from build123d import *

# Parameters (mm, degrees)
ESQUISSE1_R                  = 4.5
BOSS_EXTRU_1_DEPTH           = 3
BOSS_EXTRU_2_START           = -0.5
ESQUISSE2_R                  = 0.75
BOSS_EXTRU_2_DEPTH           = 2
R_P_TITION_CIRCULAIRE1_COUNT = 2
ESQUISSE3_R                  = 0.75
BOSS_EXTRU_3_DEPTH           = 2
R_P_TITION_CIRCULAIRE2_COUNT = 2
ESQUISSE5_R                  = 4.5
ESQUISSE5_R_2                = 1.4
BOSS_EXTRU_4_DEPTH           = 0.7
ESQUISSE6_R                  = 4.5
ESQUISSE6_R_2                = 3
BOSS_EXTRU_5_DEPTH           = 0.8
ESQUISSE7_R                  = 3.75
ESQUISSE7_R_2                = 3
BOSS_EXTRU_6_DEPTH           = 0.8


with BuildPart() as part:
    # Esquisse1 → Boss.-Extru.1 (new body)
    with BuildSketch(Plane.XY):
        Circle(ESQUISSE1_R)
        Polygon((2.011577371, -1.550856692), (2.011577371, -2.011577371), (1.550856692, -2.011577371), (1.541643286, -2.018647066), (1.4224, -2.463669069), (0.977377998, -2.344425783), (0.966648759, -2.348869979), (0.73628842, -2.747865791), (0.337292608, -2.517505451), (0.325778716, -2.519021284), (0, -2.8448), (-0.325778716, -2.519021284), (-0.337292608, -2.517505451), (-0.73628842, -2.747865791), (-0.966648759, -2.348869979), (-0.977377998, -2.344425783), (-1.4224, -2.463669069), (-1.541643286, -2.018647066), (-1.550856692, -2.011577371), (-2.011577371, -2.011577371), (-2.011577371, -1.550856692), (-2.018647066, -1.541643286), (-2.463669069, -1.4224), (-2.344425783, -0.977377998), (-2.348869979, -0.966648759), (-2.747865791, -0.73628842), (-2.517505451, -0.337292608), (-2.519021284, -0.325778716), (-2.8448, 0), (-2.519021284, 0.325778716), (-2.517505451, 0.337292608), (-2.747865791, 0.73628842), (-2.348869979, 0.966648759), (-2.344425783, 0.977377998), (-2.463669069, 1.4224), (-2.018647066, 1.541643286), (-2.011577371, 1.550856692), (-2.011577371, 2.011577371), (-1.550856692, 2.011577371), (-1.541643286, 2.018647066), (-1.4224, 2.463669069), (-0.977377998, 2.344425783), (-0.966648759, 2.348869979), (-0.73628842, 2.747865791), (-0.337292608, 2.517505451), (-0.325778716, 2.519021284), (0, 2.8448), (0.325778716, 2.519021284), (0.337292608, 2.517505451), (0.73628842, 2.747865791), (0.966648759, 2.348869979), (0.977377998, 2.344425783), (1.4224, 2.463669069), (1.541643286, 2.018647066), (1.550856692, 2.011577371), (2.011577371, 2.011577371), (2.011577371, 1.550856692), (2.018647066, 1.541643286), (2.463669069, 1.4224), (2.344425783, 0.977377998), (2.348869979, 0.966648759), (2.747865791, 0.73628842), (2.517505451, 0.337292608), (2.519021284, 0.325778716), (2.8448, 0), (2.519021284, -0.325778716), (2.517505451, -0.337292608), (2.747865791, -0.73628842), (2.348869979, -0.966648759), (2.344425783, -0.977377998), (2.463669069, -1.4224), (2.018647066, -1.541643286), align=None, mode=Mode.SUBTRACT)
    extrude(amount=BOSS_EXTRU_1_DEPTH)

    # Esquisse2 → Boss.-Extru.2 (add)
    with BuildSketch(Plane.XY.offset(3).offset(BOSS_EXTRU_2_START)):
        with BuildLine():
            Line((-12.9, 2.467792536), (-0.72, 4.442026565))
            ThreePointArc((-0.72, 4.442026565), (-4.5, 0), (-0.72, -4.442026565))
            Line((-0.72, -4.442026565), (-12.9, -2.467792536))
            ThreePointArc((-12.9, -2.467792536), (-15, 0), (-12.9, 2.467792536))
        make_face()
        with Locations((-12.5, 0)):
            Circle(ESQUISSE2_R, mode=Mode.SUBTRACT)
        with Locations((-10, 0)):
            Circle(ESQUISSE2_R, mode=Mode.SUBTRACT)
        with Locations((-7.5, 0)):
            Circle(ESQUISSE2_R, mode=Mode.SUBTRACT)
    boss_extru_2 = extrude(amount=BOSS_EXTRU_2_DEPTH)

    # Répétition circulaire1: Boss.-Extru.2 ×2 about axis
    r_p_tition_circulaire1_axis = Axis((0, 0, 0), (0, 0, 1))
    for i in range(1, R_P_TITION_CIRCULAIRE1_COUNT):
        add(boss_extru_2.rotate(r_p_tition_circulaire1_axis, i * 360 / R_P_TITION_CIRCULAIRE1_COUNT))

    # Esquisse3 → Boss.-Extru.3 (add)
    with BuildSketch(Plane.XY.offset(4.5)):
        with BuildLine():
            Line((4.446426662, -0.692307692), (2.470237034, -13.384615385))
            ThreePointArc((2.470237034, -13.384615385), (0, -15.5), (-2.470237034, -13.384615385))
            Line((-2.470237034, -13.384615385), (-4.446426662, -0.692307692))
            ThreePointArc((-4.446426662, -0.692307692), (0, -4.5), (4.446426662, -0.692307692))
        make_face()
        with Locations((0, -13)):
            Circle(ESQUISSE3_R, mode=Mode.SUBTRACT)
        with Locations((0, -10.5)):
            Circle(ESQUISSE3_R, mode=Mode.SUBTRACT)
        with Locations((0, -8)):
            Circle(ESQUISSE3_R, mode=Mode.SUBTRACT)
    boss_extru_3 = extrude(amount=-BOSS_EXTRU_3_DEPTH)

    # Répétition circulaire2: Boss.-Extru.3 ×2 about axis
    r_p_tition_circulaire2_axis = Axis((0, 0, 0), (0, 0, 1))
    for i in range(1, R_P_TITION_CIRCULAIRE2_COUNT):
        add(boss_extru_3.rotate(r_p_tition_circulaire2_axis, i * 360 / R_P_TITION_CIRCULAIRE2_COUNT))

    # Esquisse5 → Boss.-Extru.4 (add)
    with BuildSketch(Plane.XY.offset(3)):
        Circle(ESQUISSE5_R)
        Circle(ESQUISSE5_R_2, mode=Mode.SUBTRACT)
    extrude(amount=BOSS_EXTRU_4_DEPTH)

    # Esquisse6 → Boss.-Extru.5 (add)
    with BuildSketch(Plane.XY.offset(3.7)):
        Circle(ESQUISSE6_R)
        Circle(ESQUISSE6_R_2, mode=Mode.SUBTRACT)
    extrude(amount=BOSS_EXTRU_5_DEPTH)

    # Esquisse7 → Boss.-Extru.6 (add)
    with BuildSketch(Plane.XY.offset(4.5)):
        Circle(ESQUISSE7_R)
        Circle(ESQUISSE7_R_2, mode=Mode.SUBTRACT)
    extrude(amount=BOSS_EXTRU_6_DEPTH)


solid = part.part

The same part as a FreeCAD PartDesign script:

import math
import FreeCAD as App
import Part
import Sketcher
from FreeCAD import Vector
Q = App.Units.Quantity


def add_polygon(sketch, points):
    """Adds a closed chain of lines whose ends are joined by coincident constraints."""
    first, n = sketch.GeometryCount, len(points)
    for a, b in zip(points, points[1:] + points[:1]):
        sketch.addGeometry(Part.LineSegment(App.Vector(*a, 0), App.Vector(*b, 0)), False)
    for i in range(n):
        sketch.addConstraint(Sketcher.Constraint("Coincident", first + i, 2, first + (i + 1) % n, 1))

doc = App.newDocument("Part")
body = doc.addObject("PartDesign::Body", "Body")

sketch1 = doc.addObject("Sketcher::SketchObject", "Sketch")
body.addObject(sketch1)
sketch1.AttachmentSupport = (doc.XY_Plane, [""])
sketch1.MapMode = "FlatFace"
sketch1.addGeometry(Part.Circle(Vector(0, 0, 0), Vector(0, 0, 1), 4.5), False)
add_polygon(sketch1, [(2.019, -1.542), (2.012, -1.551), (2.012, -2.012), (1.551, -2.012), (1.542, -2.019), (1.422, -2.464), (0.977, -2.344), (0.967, -2.349), (0.736, -2.748), (0.337, -2.518), (0.326, -2.519), (0, -2.845), (-0.326, -2.519), (-0.337, -2.518), (-0.736, -2.748), (-0.967, -2.349), (-0.977, -2.344), (-1.422, -2.464), (-1.542, -2.019), (-1.551, -2.012), (-2.012, -2.012), (-2.012, -1.551), (-2.019, -1.542), (-2.464, -1.422), (-2.344, -0.977), (-2.349, -0.967), (-2.748, -0.736), (-2.518, -0.337), (-2.519, -0.326), (-2.845, 0), (-2.519, 0.326), (-2.518, 0.337), (-2.748, 0.736), (-2.349, 0.967), (-2.344, 0.977), (-2.464, 1.422), (-2.019, 1.542), (-2.012, 1.551), (-2.012, 2.012), (-1.551, 2.012), (-1.542, 2.019), (-1.422, 2.464), (-0.977, 2.344), (-0.967, 2.349), (-0.736, 2.748), (-0.337, 2.518), (-0.326, 2.519), (0, 2.845), (0.326, 2.519), (0.337, 2.518), (0.736, 2.748), (0.967, 2.349), (0.977, 2.344), (1.422, 2.464), (1.542, 2.019), (1.551, 2.012), (2.012, 2.012), (2.012, 1.551), (2.019, 1.542), (2.464, 1.422), (2.344, 0.977), (2.349, 0.967), (2.748, 0.736), (2.518, 0.337), (2.519, 0.326), (2.845, 0), (2.519, -0.326), (2.518, -0.337), (2.748, -0.736), (2.349, -0.967), (2.344, -0.977), (2.464, -1.422)])
sketch1.addConstraint(Sketcher.Constraint("Vertical", 2))
sketch1.addConstraint(Sketcher.Constraint("Horizontal", 3))
sketch1.addConstraint(Sketcher.Constraint("Horizontal", 20))
sketch1.addConstraint(Sketcher.Constraint("Vertical", 21))
sketch1.addConstraint(Sketcher.Constraint("Vertical", 38))
sketch1.addConstraint(Sketcher.Constraint("Horizontal", 39))
sketch1.addConstraint(Sketcher.Constraint("Horizontal", 56))
sketch1.addConstraint(Sketcher.Constraint("Vertical", 57))
sketch1.addConstraint(Sketcher.Constraint("Coincident", 0, 3, -1, 1))
sketch1.addConstraint(Sketcher.Constraint("Symmetric", 1, 2, 37, 2, -1, 1))
sketch1.addConstraint(Sketcher.Constraint("Symmetric", 3, 2, 39, 2, -1, 1))
sketch1.addConstraint(Sketcher.Constraint("Symmetric", 4, 2, 40, 2, -1, 1))
sketch1.addConstraint(Sketcher.Constraint("Symmetric", 5, 2, 41, 2, -1, 1))
sketch1.addConstraint(Sketcher.Constraint("Symmetric", 6, 2, 42, 2, -1, 1))
sketch1.addConstraint(Sketcher.Constraint("Symmetric", 7, 2, 43, 2, -1, 1))
sketch1.addConstraint(Sketcher.Constraint("Symmetric", 8, 2, 44, 2, -1, 1))
sketch1.addConstraint(Sketcher.Constraint("Symmetric", 9, 2, 45, 2, -1, 1))
sketch1.addConstraint(Sketcher.Constraint("Symmetric", 10, 2, 46, 2, -1, 1))
sketch1.addConstraint(Sketcher.Constraint("Symmetric", 11, 2, 47, 2, -1, 1))
sketch1.addConstraint(Sketcher.Constraint("Symmetric", 12, 2, 48, 2, -1, 1))
sketch1.addConstraint(Sketcher.Constraint("Symmetric", 13, 2, 49, 2, -1, 1))
sketch1.addConstraint(Sketcher.Constraint("Symmetric", 14, 2, 50, 2, -1, 1))
sketch1.addConstraint(Sketcher.Constraint("Symmetric", 15, 2, 51, 2, -1, 1))
sketch1.addConstraint(Sketcher.Constraint("Symmetric", 16, 2, 52, 2, -1, 1))
sketch1.addConstraint(Sketcher.Constraint("Symmetric", 17, 2, 53, 2, -1, 1))
sketch1.addConstraint(Sketcher.Constraint("Symmetric", 18, 2, 54, 2, -1, 1))
sketch1.addConstraint(Sketcher.Constraint("Symmetric", 19, 2, 55, 2, -1, 1))
sketch1.addConstraint(Sketcher.Constraint("Symmetric", 21, 2, 57, 2, -1, 1))
sketch1.addConstraint(Sketcher.Constraint("Symmetric", 22, 2, 58, 2, -1, 1))
sketch1.addConstraint(Sketcher.Constraint("Symmetric", 23, 2, 59, 2, -1, 1))
sketch1.addConstraint(Sketcher.Constraint("Symmetric", 24, 2, 60, 2, -1, 1))
sketch1.addConstraint(Sketcher.Constraint("Symmetric", 25, 2, 61, 2, -1, 1))
sketch1.addConstraint(Sketcher.Constraint("Symmetric", 26, 2, 62, 2, -1, 1))
sketch1.addConstraint(Sketcher.Constraint("Symmetric", 27, 2, 63, 2, -1, 1))
sketch1.addConstraint(Sketcher.Constraint("Symmetric", 28, 2, 64, 2, -1, 1))
sketch1.addConstraint(Sketcher.Constraint("Symmetric", 29, 2, 65, 2, -1, 1))
sketch1.addConstraint(Sketcher.Constraint("Symmetric", 30, 2, 66, 2, -1, 1))
sketch1.addConstraint(Sketcher.Constraint("Symmetric", 31, 2, 67, 2, -1, 1))
sketch1.addConstraint(Sketcher.Constraint("Symmetric", 32, 2, 68, 2, -1, 1))
sketch1.addConstraint(Sketcher.Constraint("Symmetric", 33, 2, 69, 2, -1, 1))
sketch1.addConstraint(Sketcher.Constraint("Symmetric", 34, 2, 70, 2, -1, 1))
sketch1.addConstraint(Sketcher.Constraint("Symmetric", 35, 2, 71, 2, -1, 1))
sketch1.addConstraint(Sketcher.Constraint("Symmetric", 36, 2, 72, 2, -1, 1))
sketch1.addConstraint(Sketcher.Constraint("Symmetric", 10, 2, 12, 2, -2))
sketch1.addConstraint(Sketcher.Constraint("Symmetric", 9, 2, 13, 2, -2))
sketch1.addConstraint(Sketcher.Constraint("Symmetric", 8, 2, 14, 2, -2))
sketch1.addConstraint(Sketcher.Constraint("Symmetric", 7, 2, 15, 2, -2))
sketch1.addConstraint(Sketcher.Constraint("Symmetric", 6, 2, 16, 2, -2))
sketch1.addConstraint(Sketcher.Constraint("Symmetric", 5, 2, 17, 2, -2))
sketch1.addConstraint(Sketcher.Constraint("Symmetric", 4, 2, 18, 2, -2))
sketch1.addConstraint(Sketcher.Constraint("Symmetric", 3, 2, 19, 2, -2))
sketch1.addConstraint(Sketcher.Constraint("Symmetric", 1, 2, 21, 2, -2))
sketch1.addConstraint(Sketcher.Constraint("Symmetric", 36, 2, 58, 2, -2))
sketch1.addConstraint(Sketcher.Constraint("Symmetric", 35, 2, 59, 2, -2))
sketch1.addConstraint(Sketcher.Constraint("Symmetric", 34, 2, 60, 2, -2))
sketch1.addConstraint(Sketcher.Constraint("Symmetric", 33, 2, 61, 2, -2))
sketch1.addConstraint(Sketcher.Constraint("Symmetric", 32, 2, 62, 2, -2))
sketch1.addConstraint(Sketcher.Constraint("Symmetric", 31, 2, 63, 2, -2))
sketch1.addConstraint(Sketcher.Constraint("Symmetric", 30, 2, 64, 2, -2))
sketch1.addConstraint(Sketcher.Constraint("PointOnObject", 11, 2, -2))
sketch1.addConstraint(Sketcher.Constraint("PointOnObject", 29, 2, -1))
sketch1.addConstraint(Sketcher.Constraint("Perpendicular", 5, 6))
sketch1.addConstraint(Sketcher.Constraint("Perpendicular", 8, 9))
sketch1.addConstraint(Sketcher.Constraint("Perpendicular", 11, 12))
sketch1.addConstraint(Sketcher.Constraint("Perpendicular", 1, 19))
sketch1.addConstraint(Sketcher.Constraint("Parallel", 6, 23))
sketch1.addConstraint(Sketcher.Constraint("Perpendicular", 23, 24))
sketch1.addConstraint(Sketcher.Constraint("Perpendicular", 7, 25))
sketch1.addConstraint(Sketcher.Constraint("Parallel", 9, 26))
sketch1.addConstraint(Sketcher.Constraint("Perpendicular", 26, 27))
sketch1.addConstraint(Sketcher.Constraint("Perpendicular", 10, 28))
sketch1.addConstraint(Sketcher.Constraint("Parallel", 12, 29))
sketch1.addConstraint(Sketcher.Constraint("Equal", 56, 2))
sketch1.addConstraint(Sketcher.Constraint("Equal", 1, 4))
sketch1.addConstraint(Sketcher.Constraint("Equal", 5, 6))
sketch1.addConstraint(Sketcher.Constraint("Equal", 4, 7))
sketch1.addConstraint(Sketcher.Constraint("Equal", 6, 8))
sketch1.addConstraint(Sketcher.Constraint("Equal", 8, 9))
sketch1.addConstraint(Sketcher.Constraint("Equal", 7, 10))
sketch1.addConstraint(Sketcher.Constraint("Equal", 9, 11))
sketch1.addConstraint(Sketcher.Constraint("Equal", 18, 23))
sketch1.addConstraint(Sketcher.Constraint("Equal", 23, 24))
sketch1.addConstraint(Sketcher.Constraint("Equal", 22, 25))
sketch1.addConstraint(Sketcher.Constraint("Equal", 24, 26))
sketch1.addConstraint(Sketcher.Constraint("Equal", 26, 27))
sketch1.addConstraint(Sketcher.Constraint("Equal", 25, 28))
sketch1.addConstraint(Sketcher.Constraint("Equal", 27, 29))
sketch1.addConstraint(Sketcher.Constraint("Diameter", 0, 9.0))
sketch1.addConstraint(Sketcher.Constraint("Angle", 5, Q("-105 deg")))
sketch1.addConstraint(Sketcher.Constraint("Angle", 8, Q("-120 deg")))
sketch1.addConstraint(Sketcher.Constraint("Angle", 1, Q("-127.5 deg")))
sketch1.addConstraint(Sketcher.Constraint("Angle", 7, Q("-157.500001 deg")))
sketch1.addConstraint(Sketcher.Constraint("Angle", 10, Q("-172.499998 deg")))
sketch1.addConstraint(Sketcher.Constraint("DistanceX", 3, 2, 3, 1, 0.460721))
sketch1.addConstraint(Sketcher.Constraint("DistanceX", -1, 1, 5, 2, 1.4224))
sketch1.addConstraint(Sketcher.Constraint("DistanceY", 11, 2, -1, 1, 2.8448))
pad1 = doc.addObject("PartDesign::Pad", "Pad")
body.addObject(pad1)
pad1.Profile = sketch1
pad1.Length = 3

sketch2 = doc.addObject("Sketcher::SketchObject", "Sketch001")
body.addObject(sketch2)
sketch2.AttachmentSupport = (doc.XY_Plane, [""])
sketch2.MapMode = "FlatFace"
sketch2.AttachmentOffset = App.Placement(Vector(0, 0, 2.5), App.Rotation())
sketch2.addGeometry(Part.LineSegment(Vector(-0.7, 4.4, 0), Vector(-12.9, 2.5, 0)), False)
sketch2.addGeometry(Part.ArcOfCircle(Part.Circle(Vector(-12.5, 0, 0), Vector(0, 0, 1), 2.5), math.radians(99), math.radians(261)), False)
sketch2.addGeometry(Part.LineSegment(Vector(-12.9, -2.5, 0), Vector(-0.7, -4.4, 0)), False)
sketch2.addGeometry(Part.ArcOfCircle(Part.Circle(Vector(0, 0, 0), Vector(0, 0, 1), 4.5), math.radians(99), math.radians(261)), False)
sketch2.addGeometry(Part.Circle(Vector(-7.5, 0, 0), Vector(0, 0, 1), 0.8), False)
sketch2.addGeometry(Part.Circle(Vector(-10, 0, 0), Vector(0, 0, 1), 0.8), False)
sketch2.addGeometry(Part.Circle(Vector(-12.5, 0, 0), Vector(0, 0, 1), 0.8), False)
sketch2.addConstraint(Sketcher.Constraint("Tangent", 0, 2, 1, 1))
sketch2.addConstraint(Sketcher.Constraint("Tangent", 1, 2, 2, 1))
sketch2.addConstraint(Sketcher.Constraint("Tangent", 2, 2, 3, 2))
sketch2.addConstraint(Sketcher.Constraint("Tangent", 3, 1, 0, 1))
sketch2.addConstraint(Sketcher.Constraint("Coincident", 3, 3, -1, 1))
sketch2.addConstraint(Sketcher.Constraint("Coincident", 6, 3, 1, 3))
sketch2.addConstraint(Sketcher.Constraint("Equal", 4, 5))
sketch2.addConstraint(Sketcher.Constraint("Equal", 5, 6))
sketch2.addConstraint(Sketcher.Constraint("PointOnObject", 1, 3, -1))
sketch2.addConstraint(Sketcher.Constraint("PointOnObject", 4, 3, -1))
sketch2.addConstraint(Sketcher.Constraint("PointOnObject", 5, 3, -1))
sketch2.addConstraint(Sketcher.Constraint("Diameter", 4, 1.5))
sketch2.addConstraint(Sketcher.Constraint("Radius", 1, 2.5))
sketch2.addConstraint(Sketcher.Constraint("Radius", 3, 4.5))
sketch2.addConstraint(Sketcher.Constraint("DistanceX", 5, 3, -1, 1, 10.0))
sketch2.addConstraint(Sketcher.Constraint("DistanceX", 1, 3, 4, 3, 5.0))
sketch2.addConstraint(Sketcher.Constraint("DistanceX", 1, 3, -1, 1, 12.5))
pad2 = doc.addObject("PartDesign::Pad", "Pad001")
body.addObject(pad2)
pad2.Profile = sketch2
pad2.Length = 2
doc.recompute()

polarpattern = doc.addObject("PartDesign::PolarPattern", "PolarPattern")
body.addObject(polarpattern)
polarpattern.Originals = [pad2]
polarpattern.Axis = (doc.Z_Axis, [""])
polarpattern.Angle = 360
polarpattern.Occurrences = 2
body.Tip = polarpattern

sketch3 = doc.addObject("Sketcher::SketchObject", "Sketch002")
body.addObject(sketch3)
sketch3.AttachmentSupport = (doc.XY_Plane, [""])
sketch3.MapMode = "FlatFace"
sketch3.AttachmentOffset = App.Placement(Vector(0, 0, 4.5), App.Rotation())
sketch3.addGeometry(Part.LineSegment(Vector(2.5, -13.4, 0), Vector(4.4, -0.7, 0)), False)
sketch3.addGeometry(Part.ArcOfCircle(Part.Circle(Vector(0, 0, 0), Vector(0, 0, 1), 4.5), math.radians(-171), math.radians(-9)), False)
sketch3.addGeometry(Part.LineSegment(Vector(-4.4, -0.7, 0), Vector(-2.5, -13.4, 0)), False)
sketch3.addGeometry(Part.ArcOfCircle(Part.Circle(Vector(0, -13, 0), Vector(0, 0, 1), 2.5), math.radians(-171), math.radians(-9)), False)
sketch3.addGeometry(Part.Circle(Vector(0, -13, 0), Vector(0, 0, 1), 0.8), False)
sketch3.addGeometry(Part.Circle(Vector(0, -10.5, 0), Vector(0, 0, 1), 0.8), False)
sketch3.addGeometry(Part.Circle(Vector(0, -8, 0), Vector(0, 0, 1), 0.8), False)
sketch3.addConstraint(Sketcher.Constraint("Tangent", 0, 2, 1, 2))
sketch3.addConstraint(Sketcher.Constraint("Tangent", 1, 1, 2, 1))
sketch3.addConstraint(Sketcher.Constraint("Tangent", 2, 2, 3, 1))
sketch3.addConstraint(Sketcher.Constraint("Tangent", 3, 2, 0, 1))
sketch3.addConstraint(Sketcher.Constraint("Coincident", 1, 3, -1, 1))
sketch3.addConstraint(Sketcher.Constraint("Coincident", 4, 3, 3, 3))
sketch3.addConstraint(Sketcher.Constraint("Equal", 4, 5))
sketch3.addConstraint(Sketcher.Constraint("Equal", 5, 6))
sketch3.addConstraint(Sketcher.Constraint("PointOnObject", 3, 3, -2))
sketch3.addConstraint(Sketcher.Constraint("PointOnObject", 5, 3, -2))
sketch3.addConstraint(Sketcher.Constraint("PointOnObject", 6, 3, -2))
sketch3.addConstraint(Sketcher.Constraint("Diameter", 4, 1.5))
sketch3.addConstraint(Sketcher.Constraint("Radius", 1, 4.5))
sketch3.addConstraint(Sketcher.Constraint("Radius", 3, 2.5))
sketch3.addConstraint(Sketcher.Constraint("DistanceY", 3, 3, -1, 1, 13.0))
sketch3.addConstraint(Sketcher.Constraint("DistanceY", 6, 3, -1, 1, 8.0))
sketch3.addConstraint(Sketcher.Constraint("DistanceY", 5, 3, -1, 1, 10.5))
pad3 = doc.addObject("PartDesign::Pad", "Pad002")
body.addObject(pad3)
pad3.Profile = sketch3
pad3.Length = 2
pad3.Reversed = True
doc.recompute()

polarpattern2 = doc.addObject("PartDesign::PolarPattern", "PolarPattern001")
body.addObject(polarpattern2)
polarpattern2.Originals = [pad3]
polarpattern2.Axis = (doc.Z_Axis, [""])
polarpattern2.Angle = 360
polarpattern2.Occurrences = 2
body.Tip = polarpattern2

sketch4 = doc.addObject("Sketcher::SketchObject", "Sketch003")
body.addObject(sketch4)
sketch4.AttachmentSupport = (doc.XY_Plane, [""])
sketch4.MapMode = "FlatFace"
sketch4.AttachmentOffset = App.Placement(Vector(0, 0, 3), App.Rotation())
sketch4.addGeometry(Part.Circle(Vector(0, 0, 0), Vector(0, 0, 1), 4.5), False)
sketch4.addGeometry(Part.Circle(Vector(0, 0, 0), Vector(0, 0, 1), 1.4), False)
sketch4.addConstraint(Sketcher.Constraint("Coincident", 0, 3, -1, 1))
sketch4.addConstraint(Sketcher.Constraint("Coincident", 1, 3, -1, 1))
sketch4.addConstraint(Sketcher.Constraint("Diameter", 0, 9.0))
sketch4.addConstraint(Sketcher.Constraint("Diameter", 1, 2.8))
pad4 = doc.addObject("PartDesign::Pad", "Pad003")
body.addObject(pad4)
pad4.Profile = sketch4
pad4.Length = 0.7

sketch5 = doc.addObject("Sketcher::SketchObject", "Sketch004")
body.addObject(sketch5)
sketch5.AttachmentSupport = (doc.XY_Plane, [""])
sketch5.MapMode = "FlatFace"
sketch5.AttachmentOffset = App.Placement(Vector(0, 0, 3.7), App.Rotation())
sketch5.addGeometry(Part.Circle(Vector(0, 0, 0), Vector(0, 0, 1), 4.5), False)
sketch5.addGeometry(Part.Circle(Vector(0, 0, 0), Vector(0, 0, 1), 3), False)
sketch5.addConstraint(Sketcher.Constraint("Coincident", 0, 3, -1, 1))
sketch5.addConstraint(Sketcher.Constraint("Coincident", 1, 3, -1, 1))
sketch5.addConstraint(Sketcher.Constraint("Diameter", 0, 9.0))
sketch5.addConstraint(Sketcher.Constraint("Diameter", 1, 6.0))
pad5 = doc.addObject("PartDesign::Pad", "Pad004")
body.addObject(pad5)
pad5.Profile = sketch5
pad5.Length = 0.8

sketch6 = doc.addObject("Sketcher::SketchObject", "Sketch005")
body.addObject(sketch6)
sketch6.AttachmentSupport = (doc.XY_Plane, [""])
sketch6.MapMode = "FlatFace"
sketch6.AttachmentOffset = App.Placement(Vector(0, 0, 4.5), App.Rotation())
sketch6.addGeometry(Part.Circle(Vector(0, 0, 0), Vector(0, 0, 1), 3.8), False)
sketch6.addGeometry(Part.Circle(Vector(0, 0, 0), Vector(0, 0, 1), 3), False)
sketch6.addConstraint(Sketcher.Constraint("Coincident", 0, 3, -1, 1))
sketch6.addConstraint(Sketcher.Constraint("Coincident", 1, 3, -1, 1))
sketch6.addConstraint(Sketcher.Constraint("Diameter", 1, 6.0))
sketch6.addConstraint(Sketcher.Constraint("Diameter", 0, 7.5))
pad6 = doc.addObject("PartDesign::Pad", "Pad005")
body.addObject(pad6)
pad6.Profile = sketch6
pad6.Length = 0.8

doc.recompute()
